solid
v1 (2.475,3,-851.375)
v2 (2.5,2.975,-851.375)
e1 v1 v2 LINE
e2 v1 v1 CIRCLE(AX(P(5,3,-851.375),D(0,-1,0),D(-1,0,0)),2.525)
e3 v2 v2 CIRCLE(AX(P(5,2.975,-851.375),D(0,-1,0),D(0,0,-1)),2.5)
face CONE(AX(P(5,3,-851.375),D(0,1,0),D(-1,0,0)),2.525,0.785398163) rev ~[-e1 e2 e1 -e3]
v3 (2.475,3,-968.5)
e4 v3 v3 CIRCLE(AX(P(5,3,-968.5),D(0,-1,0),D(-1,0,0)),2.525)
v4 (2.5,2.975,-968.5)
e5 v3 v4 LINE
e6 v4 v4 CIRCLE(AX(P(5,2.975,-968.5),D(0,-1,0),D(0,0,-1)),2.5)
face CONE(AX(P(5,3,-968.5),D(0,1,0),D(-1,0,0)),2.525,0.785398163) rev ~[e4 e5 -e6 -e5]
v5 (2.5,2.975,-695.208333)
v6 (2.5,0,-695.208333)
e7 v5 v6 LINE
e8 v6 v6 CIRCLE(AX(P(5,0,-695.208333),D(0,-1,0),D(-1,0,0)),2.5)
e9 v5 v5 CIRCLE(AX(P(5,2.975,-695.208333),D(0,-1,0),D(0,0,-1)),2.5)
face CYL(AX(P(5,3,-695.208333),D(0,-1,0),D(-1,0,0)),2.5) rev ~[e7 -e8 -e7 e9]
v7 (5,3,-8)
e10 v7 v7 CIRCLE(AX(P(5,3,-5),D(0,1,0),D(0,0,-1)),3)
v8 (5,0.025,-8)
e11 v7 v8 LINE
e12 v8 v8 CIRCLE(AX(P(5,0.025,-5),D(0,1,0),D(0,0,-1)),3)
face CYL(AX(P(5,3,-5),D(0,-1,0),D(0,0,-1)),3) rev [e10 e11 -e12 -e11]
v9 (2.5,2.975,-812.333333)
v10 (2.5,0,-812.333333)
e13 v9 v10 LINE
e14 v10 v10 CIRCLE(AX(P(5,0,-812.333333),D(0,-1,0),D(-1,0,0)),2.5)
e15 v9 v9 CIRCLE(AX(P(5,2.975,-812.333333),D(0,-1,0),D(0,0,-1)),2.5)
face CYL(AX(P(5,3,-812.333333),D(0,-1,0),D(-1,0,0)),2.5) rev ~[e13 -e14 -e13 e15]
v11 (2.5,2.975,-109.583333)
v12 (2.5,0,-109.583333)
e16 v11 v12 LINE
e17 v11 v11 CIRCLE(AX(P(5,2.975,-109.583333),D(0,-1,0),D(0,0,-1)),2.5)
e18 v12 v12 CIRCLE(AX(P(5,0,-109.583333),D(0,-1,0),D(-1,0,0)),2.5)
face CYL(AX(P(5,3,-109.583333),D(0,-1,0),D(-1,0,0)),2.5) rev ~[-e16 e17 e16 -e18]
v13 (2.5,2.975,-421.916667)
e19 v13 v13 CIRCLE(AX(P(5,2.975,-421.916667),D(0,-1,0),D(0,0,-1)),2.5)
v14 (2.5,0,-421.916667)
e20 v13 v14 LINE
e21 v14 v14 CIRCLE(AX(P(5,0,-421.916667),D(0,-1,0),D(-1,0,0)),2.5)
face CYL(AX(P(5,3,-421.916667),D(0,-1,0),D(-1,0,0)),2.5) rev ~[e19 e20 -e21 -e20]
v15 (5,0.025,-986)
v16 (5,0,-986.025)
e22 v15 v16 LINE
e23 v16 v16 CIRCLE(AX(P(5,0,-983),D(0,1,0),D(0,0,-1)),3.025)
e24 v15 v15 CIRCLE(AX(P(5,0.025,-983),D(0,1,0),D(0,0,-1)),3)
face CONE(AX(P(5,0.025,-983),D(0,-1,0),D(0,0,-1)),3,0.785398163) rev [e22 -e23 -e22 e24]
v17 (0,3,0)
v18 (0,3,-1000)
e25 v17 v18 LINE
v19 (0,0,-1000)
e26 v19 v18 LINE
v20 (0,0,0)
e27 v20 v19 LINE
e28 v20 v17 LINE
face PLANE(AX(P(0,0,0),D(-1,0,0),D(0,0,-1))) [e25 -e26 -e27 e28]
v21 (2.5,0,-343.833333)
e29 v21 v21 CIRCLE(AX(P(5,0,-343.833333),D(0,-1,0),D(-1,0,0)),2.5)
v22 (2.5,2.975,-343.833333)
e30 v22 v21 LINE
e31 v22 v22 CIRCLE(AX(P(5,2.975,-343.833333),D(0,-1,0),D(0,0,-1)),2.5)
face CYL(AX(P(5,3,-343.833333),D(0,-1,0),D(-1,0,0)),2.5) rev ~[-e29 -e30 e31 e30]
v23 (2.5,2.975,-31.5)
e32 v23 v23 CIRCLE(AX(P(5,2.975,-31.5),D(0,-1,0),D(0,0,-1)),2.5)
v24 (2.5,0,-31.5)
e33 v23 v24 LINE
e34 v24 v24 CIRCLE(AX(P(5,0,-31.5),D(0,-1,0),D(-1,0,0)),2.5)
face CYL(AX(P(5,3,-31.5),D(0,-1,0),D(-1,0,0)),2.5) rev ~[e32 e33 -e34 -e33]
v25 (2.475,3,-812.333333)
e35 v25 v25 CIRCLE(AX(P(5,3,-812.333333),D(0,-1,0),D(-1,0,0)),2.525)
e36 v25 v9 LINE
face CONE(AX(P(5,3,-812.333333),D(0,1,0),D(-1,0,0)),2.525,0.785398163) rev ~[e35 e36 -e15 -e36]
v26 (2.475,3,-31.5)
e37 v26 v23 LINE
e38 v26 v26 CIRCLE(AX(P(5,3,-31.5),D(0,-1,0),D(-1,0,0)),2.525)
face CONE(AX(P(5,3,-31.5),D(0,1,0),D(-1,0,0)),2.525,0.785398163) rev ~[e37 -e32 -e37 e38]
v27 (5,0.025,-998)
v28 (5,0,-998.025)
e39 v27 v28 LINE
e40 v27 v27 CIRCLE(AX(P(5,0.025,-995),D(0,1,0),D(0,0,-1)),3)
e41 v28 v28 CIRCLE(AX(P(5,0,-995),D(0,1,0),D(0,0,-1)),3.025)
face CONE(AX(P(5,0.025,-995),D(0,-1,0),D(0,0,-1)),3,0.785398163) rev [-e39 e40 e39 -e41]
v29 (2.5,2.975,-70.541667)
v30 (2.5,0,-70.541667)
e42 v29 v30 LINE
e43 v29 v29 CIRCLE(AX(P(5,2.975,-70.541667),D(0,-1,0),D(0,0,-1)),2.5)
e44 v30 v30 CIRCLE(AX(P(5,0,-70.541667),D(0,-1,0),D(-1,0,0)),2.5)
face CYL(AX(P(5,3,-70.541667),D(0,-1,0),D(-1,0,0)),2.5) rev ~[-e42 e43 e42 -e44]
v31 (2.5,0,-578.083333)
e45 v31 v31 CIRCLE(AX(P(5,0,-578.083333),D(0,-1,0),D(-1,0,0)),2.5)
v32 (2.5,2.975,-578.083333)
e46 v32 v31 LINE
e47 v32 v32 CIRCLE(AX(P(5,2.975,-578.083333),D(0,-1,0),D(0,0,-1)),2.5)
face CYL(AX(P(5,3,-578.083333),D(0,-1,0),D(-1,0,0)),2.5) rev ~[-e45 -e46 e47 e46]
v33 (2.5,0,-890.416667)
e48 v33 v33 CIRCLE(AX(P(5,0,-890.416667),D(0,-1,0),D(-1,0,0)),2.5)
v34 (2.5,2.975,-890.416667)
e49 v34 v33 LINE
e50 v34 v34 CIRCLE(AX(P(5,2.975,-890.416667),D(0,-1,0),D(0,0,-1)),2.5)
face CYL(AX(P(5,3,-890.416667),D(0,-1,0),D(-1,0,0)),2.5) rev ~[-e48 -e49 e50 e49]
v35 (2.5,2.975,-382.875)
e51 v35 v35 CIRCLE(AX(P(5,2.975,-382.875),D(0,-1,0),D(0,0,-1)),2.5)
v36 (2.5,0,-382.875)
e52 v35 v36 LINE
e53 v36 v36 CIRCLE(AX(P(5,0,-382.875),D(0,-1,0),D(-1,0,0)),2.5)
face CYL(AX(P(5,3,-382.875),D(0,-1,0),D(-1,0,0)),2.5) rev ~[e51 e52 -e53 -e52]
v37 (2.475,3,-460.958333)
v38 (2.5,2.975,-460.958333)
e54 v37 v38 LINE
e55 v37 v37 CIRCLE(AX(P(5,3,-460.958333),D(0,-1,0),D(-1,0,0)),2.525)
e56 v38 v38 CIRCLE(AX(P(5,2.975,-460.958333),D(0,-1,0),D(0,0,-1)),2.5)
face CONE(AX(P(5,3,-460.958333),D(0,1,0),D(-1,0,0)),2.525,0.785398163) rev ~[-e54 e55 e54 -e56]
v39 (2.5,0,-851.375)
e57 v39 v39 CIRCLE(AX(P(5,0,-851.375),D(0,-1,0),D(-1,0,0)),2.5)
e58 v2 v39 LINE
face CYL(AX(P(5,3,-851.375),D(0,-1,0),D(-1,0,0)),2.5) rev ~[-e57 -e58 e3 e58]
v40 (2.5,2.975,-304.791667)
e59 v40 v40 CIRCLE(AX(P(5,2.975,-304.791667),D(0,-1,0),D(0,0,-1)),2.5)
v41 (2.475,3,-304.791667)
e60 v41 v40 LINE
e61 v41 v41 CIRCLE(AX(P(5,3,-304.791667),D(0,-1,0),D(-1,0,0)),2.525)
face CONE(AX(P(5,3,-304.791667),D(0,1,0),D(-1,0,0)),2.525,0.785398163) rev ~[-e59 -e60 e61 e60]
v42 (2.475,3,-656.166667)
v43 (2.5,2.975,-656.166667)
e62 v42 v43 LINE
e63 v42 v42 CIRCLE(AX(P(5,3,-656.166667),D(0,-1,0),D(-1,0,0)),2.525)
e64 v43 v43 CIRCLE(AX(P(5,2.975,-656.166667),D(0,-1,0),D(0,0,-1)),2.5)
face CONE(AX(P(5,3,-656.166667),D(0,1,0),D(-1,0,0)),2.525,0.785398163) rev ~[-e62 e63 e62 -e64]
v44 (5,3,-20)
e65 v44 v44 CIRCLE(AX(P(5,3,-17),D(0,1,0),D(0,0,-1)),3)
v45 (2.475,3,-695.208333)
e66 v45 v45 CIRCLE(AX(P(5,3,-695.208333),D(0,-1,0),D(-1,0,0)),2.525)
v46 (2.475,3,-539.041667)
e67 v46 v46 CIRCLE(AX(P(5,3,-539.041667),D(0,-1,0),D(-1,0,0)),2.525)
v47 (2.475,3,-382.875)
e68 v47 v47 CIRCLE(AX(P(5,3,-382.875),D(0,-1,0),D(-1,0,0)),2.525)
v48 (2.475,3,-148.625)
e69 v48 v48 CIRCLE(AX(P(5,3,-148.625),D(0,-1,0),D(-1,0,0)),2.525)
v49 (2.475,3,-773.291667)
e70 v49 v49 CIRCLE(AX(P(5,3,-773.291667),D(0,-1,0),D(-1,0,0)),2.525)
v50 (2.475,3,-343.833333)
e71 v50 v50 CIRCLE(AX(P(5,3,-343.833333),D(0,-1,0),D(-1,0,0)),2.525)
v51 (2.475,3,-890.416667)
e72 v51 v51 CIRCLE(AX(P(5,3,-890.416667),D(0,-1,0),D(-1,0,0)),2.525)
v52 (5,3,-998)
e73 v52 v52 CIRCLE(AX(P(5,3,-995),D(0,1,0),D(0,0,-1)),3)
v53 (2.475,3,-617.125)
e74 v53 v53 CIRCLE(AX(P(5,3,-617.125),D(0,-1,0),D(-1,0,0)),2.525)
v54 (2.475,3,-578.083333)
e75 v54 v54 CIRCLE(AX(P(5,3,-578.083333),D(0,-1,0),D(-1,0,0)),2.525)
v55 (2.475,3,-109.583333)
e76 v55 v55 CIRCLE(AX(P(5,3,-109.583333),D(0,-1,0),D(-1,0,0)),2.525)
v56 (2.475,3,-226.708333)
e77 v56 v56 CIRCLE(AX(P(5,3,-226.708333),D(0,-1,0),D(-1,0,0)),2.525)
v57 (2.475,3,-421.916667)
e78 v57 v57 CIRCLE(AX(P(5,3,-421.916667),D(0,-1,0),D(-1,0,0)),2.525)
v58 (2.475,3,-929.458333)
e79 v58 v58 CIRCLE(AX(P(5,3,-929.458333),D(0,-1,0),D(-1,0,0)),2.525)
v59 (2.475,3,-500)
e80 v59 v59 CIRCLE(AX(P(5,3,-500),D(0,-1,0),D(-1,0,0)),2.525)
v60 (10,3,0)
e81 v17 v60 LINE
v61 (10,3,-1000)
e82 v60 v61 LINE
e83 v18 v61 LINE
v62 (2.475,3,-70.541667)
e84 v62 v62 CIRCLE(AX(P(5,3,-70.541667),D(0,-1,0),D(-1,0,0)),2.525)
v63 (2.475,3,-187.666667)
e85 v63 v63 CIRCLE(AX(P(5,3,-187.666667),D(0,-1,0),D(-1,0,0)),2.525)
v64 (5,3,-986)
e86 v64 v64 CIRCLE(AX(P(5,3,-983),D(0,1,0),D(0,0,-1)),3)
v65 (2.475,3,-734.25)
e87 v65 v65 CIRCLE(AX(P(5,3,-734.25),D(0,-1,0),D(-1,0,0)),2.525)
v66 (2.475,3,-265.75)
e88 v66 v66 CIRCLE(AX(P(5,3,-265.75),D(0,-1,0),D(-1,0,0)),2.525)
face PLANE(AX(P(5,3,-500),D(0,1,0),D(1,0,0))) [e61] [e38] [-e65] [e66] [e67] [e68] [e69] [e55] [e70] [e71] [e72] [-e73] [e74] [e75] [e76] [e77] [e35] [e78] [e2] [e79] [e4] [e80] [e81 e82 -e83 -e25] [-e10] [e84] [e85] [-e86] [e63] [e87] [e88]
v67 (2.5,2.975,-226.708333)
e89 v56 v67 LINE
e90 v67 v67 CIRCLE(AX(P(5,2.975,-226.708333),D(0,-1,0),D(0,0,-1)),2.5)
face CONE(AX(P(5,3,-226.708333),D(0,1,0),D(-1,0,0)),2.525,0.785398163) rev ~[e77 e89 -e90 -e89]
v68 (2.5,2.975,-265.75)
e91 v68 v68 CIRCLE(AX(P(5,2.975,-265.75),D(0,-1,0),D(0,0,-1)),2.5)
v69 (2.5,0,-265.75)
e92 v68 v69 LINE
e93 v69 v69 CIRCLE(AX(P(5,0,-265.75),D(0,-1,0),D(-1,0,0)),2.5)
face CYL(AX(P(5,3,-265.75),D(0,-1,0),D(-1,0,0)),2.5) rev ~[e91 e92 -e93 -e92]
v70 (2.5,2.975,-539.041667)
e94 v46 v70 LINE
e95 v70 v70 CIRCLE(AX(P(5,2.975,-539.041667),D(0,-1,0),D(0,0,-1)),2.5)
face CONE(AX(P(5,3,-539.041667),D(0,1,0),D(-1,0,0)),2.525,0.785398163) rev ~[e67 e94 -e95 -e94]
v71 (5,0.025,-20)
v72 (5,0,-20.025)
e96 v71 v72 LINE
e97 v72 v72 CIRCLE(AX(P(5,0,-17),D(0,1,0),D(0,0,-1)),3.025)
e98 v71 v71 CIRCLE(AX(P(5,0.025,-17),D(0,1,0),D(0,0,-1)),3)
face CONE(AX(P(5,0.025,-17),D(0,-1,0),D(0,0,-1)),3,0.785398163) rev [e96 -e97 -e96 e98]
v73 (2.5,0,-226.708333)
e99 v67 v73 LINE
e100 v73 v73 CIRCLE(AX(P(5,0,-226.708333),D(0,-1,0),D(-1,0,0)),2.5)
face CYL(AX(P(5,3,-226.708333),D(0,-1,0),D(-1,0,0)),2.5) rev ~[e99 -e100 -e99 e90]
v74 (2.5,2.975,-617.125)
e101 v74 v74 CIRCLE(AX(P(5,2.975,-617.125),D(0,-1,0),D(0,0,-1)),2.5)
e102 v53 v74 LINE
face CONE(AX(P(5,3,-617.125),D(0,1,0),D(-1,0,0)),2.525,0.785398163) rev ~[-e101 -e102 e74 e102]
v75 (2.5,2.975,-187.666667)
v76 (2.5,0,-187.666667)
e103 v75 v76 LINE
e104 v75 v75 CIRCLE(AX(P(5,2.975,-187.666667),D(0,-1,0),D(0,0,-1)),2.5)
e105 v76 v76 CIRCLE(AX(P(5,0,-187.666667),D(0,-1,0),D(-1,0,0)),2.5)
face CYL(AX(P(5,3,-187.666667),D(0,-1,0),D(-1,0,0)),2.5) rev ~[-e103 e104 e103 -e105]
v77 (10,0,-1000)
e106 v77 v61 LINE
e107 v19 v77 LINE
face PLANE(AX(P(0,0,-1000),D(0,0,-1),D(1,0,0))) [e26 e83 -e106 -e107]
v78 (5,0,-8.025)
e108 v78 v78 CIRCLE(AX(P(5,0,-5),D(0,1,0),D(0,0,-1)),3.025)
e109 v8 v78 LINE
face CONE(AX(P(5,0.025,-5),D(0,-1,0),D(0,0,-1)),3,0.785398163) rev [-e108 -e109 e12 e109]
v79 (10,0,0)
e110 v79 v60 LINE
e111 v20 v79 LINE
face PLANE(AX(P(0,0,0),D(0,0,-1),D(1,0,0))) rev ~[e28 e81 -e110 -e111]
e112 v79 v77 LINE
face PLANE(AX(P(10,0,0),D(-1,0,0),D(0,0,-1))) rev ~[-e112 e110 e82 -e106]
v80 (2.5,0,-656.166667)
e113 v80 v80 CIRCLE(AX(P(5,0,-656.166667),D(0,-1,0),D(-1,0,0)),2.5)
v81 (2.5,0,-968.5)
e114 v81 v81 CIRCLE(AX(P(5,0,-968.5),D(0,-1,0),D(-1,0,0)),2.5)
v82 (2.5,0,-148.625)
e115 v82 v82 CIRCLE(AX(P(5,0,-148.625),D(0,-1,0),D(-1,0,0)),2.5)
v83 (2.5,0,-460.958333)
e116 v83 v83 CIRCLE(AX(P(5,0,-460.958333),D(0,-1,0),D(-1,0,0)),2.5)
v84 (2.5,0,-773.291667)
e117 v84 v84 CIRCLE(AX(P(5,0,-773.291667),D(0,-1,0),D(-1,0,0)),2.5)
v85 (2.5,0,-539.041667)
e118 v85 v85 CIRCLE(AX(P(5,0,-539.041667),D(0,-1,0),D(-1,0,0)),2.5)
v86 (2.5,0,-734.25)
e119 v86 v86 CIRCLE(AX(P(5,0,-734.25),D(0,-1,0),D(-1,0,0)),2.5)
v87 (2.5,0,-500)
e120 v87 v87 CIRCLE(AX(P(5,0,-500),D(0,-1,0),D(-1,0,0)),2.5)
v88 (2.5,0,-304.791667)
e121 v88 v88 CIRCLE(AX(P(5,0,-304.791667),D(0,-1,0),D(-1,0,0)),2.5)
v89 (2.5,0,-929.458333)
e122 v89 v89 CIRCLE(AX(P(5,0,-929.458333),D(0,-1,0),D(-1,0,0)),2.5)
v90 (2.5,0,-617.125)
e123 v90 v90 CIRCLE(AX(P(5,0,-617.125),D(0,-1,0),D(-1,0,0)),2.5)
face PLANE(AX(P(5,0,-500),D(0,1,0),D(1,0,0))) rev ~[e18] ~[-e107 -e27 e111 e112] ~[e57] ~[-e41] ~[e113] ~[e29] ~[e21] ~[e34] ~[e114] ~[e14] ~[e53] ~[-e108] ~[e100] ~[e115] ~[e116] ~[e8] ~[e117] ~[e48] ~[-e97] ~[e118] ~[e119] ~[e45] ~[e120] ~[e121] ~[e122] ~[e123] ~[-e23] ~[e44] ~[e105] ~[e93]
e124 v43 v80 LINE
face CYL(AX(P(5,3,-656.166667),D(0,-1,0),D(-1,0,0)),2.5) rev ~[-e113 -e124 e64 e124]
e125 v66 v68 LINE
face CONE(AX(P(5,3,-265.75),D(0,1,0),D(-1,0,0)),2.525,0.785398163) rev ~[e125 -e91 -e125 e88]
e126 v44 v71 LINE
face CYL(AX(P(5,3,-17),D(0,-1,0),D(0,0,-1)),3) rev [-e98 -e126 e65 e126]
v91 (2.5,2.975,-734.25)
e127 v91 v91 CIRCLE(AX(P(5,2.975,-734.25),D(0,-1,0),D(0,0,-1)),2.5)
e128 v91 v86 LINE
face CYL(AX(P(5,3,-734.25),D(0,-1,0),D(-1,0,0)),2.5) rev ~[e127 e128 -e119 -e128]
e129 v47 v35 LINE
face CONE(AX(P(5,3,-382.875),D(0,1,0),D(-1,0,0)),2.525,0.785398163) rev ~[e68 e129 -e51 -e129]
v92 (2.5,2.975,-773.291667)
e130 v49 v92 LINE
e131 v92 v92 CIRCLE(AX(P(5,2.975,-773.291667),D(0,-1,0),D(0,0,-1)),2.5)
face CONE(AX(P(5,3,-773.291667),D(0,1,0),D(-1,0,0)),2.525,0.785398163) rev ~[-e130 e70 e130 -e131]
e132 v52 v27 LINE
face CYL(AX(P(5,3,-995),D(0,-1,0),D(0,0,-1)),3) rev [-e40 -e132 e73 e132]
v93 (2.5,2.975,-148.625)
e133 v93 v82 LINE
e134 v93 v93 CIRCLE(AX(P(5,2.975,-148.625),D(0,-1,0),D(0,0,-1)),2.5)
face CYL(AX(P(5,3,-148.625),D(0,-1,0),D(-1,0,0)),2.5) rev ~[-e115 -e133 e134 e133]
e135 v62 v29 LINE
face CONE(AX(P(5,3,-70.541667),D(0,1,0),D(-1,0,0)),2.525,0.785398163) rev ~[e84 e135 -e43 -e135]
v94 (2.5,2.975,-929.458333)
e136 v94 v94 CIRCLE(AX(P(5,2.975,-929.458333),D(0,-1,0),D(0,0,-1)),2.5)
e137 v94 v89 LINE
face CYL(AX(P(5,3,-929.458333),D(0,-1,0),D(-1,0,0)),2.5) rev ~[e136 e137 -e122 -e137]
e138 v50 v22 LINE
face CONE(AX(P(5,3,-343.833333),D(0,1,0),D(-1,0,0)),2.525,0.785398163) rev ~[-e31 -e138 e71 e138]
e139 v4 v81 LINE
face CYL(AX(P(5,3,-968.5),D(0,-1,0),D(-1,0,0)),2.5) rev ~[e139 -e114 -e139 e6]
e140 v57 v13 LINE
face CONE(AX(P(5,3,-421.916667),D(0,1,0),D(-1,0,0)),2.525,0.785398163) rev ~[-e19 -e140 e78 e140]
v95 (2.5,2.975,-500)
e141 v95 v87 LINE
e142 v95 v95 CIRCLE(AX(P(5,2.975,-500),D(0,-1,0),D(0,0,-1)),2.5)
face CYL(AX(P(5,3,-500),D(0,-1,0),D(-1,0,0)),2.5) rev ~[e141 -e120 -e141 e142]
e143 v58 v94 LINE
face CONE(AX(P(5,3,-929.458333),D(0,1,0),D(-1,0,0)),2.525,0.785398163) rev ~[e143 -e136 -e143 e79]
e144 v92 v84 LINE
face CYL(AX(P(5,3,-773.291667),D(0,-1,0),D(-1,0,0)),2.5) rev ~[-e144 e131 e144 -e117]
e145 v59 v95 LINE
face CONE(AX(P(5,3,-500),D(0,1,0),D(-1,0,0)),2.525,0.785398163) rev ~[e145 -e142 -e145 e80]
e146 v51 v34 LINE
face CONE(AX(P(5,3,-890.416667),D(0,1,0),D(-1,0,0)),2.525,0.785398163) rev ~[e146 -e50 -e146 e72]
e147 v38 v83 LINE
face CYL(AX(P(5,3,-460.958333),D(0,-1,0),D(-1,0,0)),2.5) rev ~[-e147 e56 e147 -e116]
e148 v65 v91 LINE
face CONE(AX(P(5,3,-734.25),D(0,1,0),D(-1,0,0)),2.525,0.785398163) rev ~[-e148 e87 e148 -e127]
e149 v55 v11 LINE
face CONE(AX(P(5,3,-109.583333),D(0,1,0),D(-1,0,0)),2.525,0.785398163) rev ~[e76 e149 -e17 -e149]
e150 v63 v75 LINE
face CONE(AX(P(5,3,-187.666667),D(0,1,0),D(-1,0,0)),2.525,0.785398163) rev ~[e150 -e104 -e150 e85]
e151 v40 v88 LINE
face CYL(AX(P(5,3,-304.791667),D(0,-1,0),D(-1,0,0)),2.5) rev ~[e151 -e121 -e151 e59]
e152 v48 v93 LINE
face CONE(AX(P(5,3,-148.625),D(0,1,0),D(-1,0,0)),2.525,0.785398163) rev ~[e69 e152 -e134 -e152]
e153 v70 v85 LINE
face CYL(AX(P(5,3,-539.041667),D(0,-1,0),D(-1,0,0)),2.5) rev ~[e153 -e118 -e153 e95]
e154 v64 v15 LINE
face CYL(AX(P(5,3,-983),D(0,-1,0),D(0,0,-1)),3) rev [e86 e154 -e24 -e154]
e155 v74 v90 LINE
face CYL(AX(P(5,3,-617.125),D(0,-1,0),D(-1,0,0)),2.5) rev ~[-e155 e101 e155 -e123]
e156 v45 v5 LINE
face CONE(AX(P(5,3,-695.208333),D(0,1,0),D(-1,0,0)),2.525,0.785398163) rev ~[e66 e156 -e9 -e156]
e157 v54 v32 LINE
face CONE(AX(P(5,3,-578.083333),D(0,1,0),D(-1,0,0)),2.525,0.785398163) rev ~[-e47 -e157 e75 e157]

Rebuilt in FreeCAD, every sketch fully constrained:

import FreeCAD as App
import Part
import Sketcher

V = App.Vector
Q = App.Units.Quantity


def add_polygon(sketch, points):
    """Adds a closed chain of lines whose ends are joined by coincident constraints."""
    first, n = sketch.GeometryCount, len(points)
    for a, b in zip(points, points[1:] + points[:1]):
        sketch.addGeometry(Part.LineSegment(App.Vector(*a, 0), App.Vector(*b, 0)), False)
    for i in range(n):
        sketch.addConstraint(Sketcher.Constraint("Coincident", first + i, 2, first + (i + 1) % n, 1))

doc = App.newDocument("Part")
body = doc.addObject("PartDesign::Body", "Body")

sketch1 = body.newObject("Sketcher::SketchObject", "Sketch")
sketch1.AttachmentSupport = (doc.getObject("XZ_Plane"), [""])
sketch1.MapMode = "FlatFace"
add_polygon(sketch1, [(0, -1000), (0, 0), (10, 0), (10, -1000)])
sketch1.addConstraint(Sketcher.Constraint("Vertical", 0))
sketch1.addConstraint(Sketcher.Constraint("Horizontal", 1))
sketch1.addConstraint(Sketcher.Constraint("Vertical", 2))
sketch1.addConstraint(Sketcher.Constraint("Horizontal", 3))
sketch1.addConstraint(Sketcher.Constraint("Coincident", 0, 2, -1, 1))
sketch1.addConstraint(Sketcher.Constraint("DistanceX", 1, 1, 1, 2, 10.0))
sketch1.addConstraint(Sketcher.Constraint("DistanceY", 0, 1, 0, 2, 1000.0))
pad1 = body.newObject("PartDesign::Pad", "Pad")
pad1.Profile = sketch1
pad1.Length = 3
pad1.Reversed = True

sketch2 = body.newObject("Sketcher::SketchObject", "Sketch001")
sketch2.AttachmentSupport = (doc.getObject("YZ_Plane"), [""])
sketch2.MapMode = "FlatFace"
sketch2.AttachmentOffset = App.Placement(V(0, 0, 5), App.Rotation())
add_polygon(sketch2, [(3, -5), (0, -5), (0, -8.025), (0.025, -8), (3, -8)])
sketch2.addGeometry(Part.LineSegment(V(0, -5, 0), V(3, -5, 0)), True)
sketch2.addConstraint(Sketcher.Constraint("Horizontal", 0))
sketch2.addConstraint(Sketcher.Constraint("Vertical", 1))
sketch2.addConstraint(Sketcher.Constraint("Horizontal", 3))
sketch2.addConstraint(Sketcher.Constraint("Vertical", 4))
sketch2.addConstraint(Sketcher.Constraint("Horizontal", 5))
sketch2.addConstraint(Sketcher.Constraint("Coincident", 5, 1, 0, 2))
sketch2.addConstraint(Sketcher.Constraint("PointOnObject", 0, 2, -2))
sketch2.addConstraint(Sketcher.Constraint("Vertical", 3, 2, 5, 2))
sketch2.addConstraint(Sketcher.Constraint("Equal", 5, 4))
sketch2.addConstraint(Sketcher.Constraint("DistanceX", 0, 2, 0, 1, 3.0))
sketch2.addConstraint(Sketcher.Constraint("Angle", 2, Q("45 deg")))
sketch2.addConstraint(Sketcher.Constraint("DistanceY", 0, 2, -1, 1, 5.0))
sketch2.addConstraint(Sketcher.Constraint("DistanceX", 3, 1, 3, 2, 2.975))
groove = body.newObject("PartDesign::Groove", "Groove")
groove.Profile = sketch2
groove.ReferenceAxis = (sketch2, ["Axis0"])
groove.Angle = 360
doc.recompute()

linearpattern = body.newObject("PartDesign::LinearPattern", "LinearPattern")
linearpattern.Originals = [groove]
linearpattern.Direction = (doc.getObject("Z_Axis"), [""])
linearpattern.Mode = "offset"
linearpattern.Offset = 12
linearpattern.Occurrences = 2
linearpattern.Reversed = True
body.Tip = linearpattern

sketch3 = body.newObject("Sketcher::SketchObject", "Sketch002")
sketch3.AttachmentSupport = (doc.getObject("YZ_Plane"), [""])
sketch3.MapMode = "FlatFace"
sketch3.AttachmentOffset = App.Placement(V(0, 0, 5), App.Rotation())
add_polygon(sketch3, [(3, -995), (0, -995), (0, -998.025), (0.025, -998), (3, -998)])
sketch3.addGeometry(Part.LineSegment(V(0, -995, 0), V(3, -995, 0)), True)
sketch3.addConstraint(Sketcher.Constraint("Horizontal", 0))
sketch3.addConstraint(Sketcher.Constraint("Vertical", 1))
sketch3.addConstraint(Sketcher.Constraint("Horizontal", 3))
sketch3.addConstraint(Sketcher.Constraint("Vertical", 4))
sketch3.addConstraint(Sketcher.Constraint("Horizontal", 5))
sketch3.addConstraint(Sketcher.Constraint("Coincident", 5, 1, 0, 2))
sketch3.addConstraint(Sketcher.Constraint("PointOnObject", 0, 2, -2))
sketch3.addConstraint(Sketcher.Constraint("Vertical", 3, 2, 5, 2))
sketch3.addConstraint(Sketcher.Constraint("Equal", 5, 4))
sketch3.addConstraint(Sketcher.Constraint("DistanceX", 0, 2, 0, 1, 3.0))
sketch3.addConstraint(Sketcher.Constraint("Angle", 2, Q("45 deg")))
sketch3.addConstraint(Sketcher.Constraint("DistanceY", 0, 2, -1, 1, 995.0))
sketch3.addConstraint(Sketcher.Constraint("DistanceX", 3, 1, 3, 2, 2.975))
groove2 = body.newObject("PartDesign::Groove", "Groove001")
groove2.Profile = sketch3
groove2.ReferenceAxis = (sketch3, ["Axis0"])
groove2.Angle = 360
doc.recompute()

linearpattern2 = body.newObject("PartDesign::LinearPattern", "LinearPattern001")
linearpattern2.Originals = [groove2]
linearpattern2.Direction = (doc.getObject("Z_Axis"), [""])
linearpattern2.Mode = "offset"
linearpattern2.Offset = 12
linearpattern2.Occurrences = 2
body.Tip = linearpattern2

sketch4 = body.newObject("Sketcher::SketchObject", "Sketch003")
sketch4.AttachmentSupport = (doc.getObject("XZ_Plane"), [""])
sketch4.MapMode = "FlatFace"
sketch4.AttachmentOffset = App.Placement(V(0, 0, -3), App.Rotation())
sketch4.addGeometry(Part.Circle(V(5, -31.5, 0), V(0, 0, 1), 2.5), False)
sketch4.addConstraint(Sketcher.Constraint("Diameter", 0, 5.0))
sketch4.addConstraint(Sketcher.Constraint("DistanceX", -1, 1, 0, 3, 5.0))
sketch4.addConstraint(Sketcher.Constraint("DistanceY", 0, 3, -1, 1, 31.5))
doc.recompute()
hole = body.newObject("PartDesign::Hole", "Hole")
hole.Profile = sketch4
hole.ThreadType = "None"
hole.Diameter = 5
hole.DepthType = "ThroughAll"
hole.HoleCutType = "Countersink"
hole.HoleCutDiameter = 5.05
hole.HoleCutCountersinkAngle = 90
hole.Reversed = True
doc.recompute()

linearpattern3 = body.newObject("PartDesign::LinearPattern", "LinearPattern002")
linearpattern3.Originals = [hole]
linearpattern3.Direction = (doc.getObject("Z_Axis"), [""])
linearpattern3.Mode = "offset"
linearpattern3.Offset = 39.041667
linearpattern3.Occurrences = 25
linearpattern3.Reversed = True
body.Tip = linearpattern3

doc.recompute()
